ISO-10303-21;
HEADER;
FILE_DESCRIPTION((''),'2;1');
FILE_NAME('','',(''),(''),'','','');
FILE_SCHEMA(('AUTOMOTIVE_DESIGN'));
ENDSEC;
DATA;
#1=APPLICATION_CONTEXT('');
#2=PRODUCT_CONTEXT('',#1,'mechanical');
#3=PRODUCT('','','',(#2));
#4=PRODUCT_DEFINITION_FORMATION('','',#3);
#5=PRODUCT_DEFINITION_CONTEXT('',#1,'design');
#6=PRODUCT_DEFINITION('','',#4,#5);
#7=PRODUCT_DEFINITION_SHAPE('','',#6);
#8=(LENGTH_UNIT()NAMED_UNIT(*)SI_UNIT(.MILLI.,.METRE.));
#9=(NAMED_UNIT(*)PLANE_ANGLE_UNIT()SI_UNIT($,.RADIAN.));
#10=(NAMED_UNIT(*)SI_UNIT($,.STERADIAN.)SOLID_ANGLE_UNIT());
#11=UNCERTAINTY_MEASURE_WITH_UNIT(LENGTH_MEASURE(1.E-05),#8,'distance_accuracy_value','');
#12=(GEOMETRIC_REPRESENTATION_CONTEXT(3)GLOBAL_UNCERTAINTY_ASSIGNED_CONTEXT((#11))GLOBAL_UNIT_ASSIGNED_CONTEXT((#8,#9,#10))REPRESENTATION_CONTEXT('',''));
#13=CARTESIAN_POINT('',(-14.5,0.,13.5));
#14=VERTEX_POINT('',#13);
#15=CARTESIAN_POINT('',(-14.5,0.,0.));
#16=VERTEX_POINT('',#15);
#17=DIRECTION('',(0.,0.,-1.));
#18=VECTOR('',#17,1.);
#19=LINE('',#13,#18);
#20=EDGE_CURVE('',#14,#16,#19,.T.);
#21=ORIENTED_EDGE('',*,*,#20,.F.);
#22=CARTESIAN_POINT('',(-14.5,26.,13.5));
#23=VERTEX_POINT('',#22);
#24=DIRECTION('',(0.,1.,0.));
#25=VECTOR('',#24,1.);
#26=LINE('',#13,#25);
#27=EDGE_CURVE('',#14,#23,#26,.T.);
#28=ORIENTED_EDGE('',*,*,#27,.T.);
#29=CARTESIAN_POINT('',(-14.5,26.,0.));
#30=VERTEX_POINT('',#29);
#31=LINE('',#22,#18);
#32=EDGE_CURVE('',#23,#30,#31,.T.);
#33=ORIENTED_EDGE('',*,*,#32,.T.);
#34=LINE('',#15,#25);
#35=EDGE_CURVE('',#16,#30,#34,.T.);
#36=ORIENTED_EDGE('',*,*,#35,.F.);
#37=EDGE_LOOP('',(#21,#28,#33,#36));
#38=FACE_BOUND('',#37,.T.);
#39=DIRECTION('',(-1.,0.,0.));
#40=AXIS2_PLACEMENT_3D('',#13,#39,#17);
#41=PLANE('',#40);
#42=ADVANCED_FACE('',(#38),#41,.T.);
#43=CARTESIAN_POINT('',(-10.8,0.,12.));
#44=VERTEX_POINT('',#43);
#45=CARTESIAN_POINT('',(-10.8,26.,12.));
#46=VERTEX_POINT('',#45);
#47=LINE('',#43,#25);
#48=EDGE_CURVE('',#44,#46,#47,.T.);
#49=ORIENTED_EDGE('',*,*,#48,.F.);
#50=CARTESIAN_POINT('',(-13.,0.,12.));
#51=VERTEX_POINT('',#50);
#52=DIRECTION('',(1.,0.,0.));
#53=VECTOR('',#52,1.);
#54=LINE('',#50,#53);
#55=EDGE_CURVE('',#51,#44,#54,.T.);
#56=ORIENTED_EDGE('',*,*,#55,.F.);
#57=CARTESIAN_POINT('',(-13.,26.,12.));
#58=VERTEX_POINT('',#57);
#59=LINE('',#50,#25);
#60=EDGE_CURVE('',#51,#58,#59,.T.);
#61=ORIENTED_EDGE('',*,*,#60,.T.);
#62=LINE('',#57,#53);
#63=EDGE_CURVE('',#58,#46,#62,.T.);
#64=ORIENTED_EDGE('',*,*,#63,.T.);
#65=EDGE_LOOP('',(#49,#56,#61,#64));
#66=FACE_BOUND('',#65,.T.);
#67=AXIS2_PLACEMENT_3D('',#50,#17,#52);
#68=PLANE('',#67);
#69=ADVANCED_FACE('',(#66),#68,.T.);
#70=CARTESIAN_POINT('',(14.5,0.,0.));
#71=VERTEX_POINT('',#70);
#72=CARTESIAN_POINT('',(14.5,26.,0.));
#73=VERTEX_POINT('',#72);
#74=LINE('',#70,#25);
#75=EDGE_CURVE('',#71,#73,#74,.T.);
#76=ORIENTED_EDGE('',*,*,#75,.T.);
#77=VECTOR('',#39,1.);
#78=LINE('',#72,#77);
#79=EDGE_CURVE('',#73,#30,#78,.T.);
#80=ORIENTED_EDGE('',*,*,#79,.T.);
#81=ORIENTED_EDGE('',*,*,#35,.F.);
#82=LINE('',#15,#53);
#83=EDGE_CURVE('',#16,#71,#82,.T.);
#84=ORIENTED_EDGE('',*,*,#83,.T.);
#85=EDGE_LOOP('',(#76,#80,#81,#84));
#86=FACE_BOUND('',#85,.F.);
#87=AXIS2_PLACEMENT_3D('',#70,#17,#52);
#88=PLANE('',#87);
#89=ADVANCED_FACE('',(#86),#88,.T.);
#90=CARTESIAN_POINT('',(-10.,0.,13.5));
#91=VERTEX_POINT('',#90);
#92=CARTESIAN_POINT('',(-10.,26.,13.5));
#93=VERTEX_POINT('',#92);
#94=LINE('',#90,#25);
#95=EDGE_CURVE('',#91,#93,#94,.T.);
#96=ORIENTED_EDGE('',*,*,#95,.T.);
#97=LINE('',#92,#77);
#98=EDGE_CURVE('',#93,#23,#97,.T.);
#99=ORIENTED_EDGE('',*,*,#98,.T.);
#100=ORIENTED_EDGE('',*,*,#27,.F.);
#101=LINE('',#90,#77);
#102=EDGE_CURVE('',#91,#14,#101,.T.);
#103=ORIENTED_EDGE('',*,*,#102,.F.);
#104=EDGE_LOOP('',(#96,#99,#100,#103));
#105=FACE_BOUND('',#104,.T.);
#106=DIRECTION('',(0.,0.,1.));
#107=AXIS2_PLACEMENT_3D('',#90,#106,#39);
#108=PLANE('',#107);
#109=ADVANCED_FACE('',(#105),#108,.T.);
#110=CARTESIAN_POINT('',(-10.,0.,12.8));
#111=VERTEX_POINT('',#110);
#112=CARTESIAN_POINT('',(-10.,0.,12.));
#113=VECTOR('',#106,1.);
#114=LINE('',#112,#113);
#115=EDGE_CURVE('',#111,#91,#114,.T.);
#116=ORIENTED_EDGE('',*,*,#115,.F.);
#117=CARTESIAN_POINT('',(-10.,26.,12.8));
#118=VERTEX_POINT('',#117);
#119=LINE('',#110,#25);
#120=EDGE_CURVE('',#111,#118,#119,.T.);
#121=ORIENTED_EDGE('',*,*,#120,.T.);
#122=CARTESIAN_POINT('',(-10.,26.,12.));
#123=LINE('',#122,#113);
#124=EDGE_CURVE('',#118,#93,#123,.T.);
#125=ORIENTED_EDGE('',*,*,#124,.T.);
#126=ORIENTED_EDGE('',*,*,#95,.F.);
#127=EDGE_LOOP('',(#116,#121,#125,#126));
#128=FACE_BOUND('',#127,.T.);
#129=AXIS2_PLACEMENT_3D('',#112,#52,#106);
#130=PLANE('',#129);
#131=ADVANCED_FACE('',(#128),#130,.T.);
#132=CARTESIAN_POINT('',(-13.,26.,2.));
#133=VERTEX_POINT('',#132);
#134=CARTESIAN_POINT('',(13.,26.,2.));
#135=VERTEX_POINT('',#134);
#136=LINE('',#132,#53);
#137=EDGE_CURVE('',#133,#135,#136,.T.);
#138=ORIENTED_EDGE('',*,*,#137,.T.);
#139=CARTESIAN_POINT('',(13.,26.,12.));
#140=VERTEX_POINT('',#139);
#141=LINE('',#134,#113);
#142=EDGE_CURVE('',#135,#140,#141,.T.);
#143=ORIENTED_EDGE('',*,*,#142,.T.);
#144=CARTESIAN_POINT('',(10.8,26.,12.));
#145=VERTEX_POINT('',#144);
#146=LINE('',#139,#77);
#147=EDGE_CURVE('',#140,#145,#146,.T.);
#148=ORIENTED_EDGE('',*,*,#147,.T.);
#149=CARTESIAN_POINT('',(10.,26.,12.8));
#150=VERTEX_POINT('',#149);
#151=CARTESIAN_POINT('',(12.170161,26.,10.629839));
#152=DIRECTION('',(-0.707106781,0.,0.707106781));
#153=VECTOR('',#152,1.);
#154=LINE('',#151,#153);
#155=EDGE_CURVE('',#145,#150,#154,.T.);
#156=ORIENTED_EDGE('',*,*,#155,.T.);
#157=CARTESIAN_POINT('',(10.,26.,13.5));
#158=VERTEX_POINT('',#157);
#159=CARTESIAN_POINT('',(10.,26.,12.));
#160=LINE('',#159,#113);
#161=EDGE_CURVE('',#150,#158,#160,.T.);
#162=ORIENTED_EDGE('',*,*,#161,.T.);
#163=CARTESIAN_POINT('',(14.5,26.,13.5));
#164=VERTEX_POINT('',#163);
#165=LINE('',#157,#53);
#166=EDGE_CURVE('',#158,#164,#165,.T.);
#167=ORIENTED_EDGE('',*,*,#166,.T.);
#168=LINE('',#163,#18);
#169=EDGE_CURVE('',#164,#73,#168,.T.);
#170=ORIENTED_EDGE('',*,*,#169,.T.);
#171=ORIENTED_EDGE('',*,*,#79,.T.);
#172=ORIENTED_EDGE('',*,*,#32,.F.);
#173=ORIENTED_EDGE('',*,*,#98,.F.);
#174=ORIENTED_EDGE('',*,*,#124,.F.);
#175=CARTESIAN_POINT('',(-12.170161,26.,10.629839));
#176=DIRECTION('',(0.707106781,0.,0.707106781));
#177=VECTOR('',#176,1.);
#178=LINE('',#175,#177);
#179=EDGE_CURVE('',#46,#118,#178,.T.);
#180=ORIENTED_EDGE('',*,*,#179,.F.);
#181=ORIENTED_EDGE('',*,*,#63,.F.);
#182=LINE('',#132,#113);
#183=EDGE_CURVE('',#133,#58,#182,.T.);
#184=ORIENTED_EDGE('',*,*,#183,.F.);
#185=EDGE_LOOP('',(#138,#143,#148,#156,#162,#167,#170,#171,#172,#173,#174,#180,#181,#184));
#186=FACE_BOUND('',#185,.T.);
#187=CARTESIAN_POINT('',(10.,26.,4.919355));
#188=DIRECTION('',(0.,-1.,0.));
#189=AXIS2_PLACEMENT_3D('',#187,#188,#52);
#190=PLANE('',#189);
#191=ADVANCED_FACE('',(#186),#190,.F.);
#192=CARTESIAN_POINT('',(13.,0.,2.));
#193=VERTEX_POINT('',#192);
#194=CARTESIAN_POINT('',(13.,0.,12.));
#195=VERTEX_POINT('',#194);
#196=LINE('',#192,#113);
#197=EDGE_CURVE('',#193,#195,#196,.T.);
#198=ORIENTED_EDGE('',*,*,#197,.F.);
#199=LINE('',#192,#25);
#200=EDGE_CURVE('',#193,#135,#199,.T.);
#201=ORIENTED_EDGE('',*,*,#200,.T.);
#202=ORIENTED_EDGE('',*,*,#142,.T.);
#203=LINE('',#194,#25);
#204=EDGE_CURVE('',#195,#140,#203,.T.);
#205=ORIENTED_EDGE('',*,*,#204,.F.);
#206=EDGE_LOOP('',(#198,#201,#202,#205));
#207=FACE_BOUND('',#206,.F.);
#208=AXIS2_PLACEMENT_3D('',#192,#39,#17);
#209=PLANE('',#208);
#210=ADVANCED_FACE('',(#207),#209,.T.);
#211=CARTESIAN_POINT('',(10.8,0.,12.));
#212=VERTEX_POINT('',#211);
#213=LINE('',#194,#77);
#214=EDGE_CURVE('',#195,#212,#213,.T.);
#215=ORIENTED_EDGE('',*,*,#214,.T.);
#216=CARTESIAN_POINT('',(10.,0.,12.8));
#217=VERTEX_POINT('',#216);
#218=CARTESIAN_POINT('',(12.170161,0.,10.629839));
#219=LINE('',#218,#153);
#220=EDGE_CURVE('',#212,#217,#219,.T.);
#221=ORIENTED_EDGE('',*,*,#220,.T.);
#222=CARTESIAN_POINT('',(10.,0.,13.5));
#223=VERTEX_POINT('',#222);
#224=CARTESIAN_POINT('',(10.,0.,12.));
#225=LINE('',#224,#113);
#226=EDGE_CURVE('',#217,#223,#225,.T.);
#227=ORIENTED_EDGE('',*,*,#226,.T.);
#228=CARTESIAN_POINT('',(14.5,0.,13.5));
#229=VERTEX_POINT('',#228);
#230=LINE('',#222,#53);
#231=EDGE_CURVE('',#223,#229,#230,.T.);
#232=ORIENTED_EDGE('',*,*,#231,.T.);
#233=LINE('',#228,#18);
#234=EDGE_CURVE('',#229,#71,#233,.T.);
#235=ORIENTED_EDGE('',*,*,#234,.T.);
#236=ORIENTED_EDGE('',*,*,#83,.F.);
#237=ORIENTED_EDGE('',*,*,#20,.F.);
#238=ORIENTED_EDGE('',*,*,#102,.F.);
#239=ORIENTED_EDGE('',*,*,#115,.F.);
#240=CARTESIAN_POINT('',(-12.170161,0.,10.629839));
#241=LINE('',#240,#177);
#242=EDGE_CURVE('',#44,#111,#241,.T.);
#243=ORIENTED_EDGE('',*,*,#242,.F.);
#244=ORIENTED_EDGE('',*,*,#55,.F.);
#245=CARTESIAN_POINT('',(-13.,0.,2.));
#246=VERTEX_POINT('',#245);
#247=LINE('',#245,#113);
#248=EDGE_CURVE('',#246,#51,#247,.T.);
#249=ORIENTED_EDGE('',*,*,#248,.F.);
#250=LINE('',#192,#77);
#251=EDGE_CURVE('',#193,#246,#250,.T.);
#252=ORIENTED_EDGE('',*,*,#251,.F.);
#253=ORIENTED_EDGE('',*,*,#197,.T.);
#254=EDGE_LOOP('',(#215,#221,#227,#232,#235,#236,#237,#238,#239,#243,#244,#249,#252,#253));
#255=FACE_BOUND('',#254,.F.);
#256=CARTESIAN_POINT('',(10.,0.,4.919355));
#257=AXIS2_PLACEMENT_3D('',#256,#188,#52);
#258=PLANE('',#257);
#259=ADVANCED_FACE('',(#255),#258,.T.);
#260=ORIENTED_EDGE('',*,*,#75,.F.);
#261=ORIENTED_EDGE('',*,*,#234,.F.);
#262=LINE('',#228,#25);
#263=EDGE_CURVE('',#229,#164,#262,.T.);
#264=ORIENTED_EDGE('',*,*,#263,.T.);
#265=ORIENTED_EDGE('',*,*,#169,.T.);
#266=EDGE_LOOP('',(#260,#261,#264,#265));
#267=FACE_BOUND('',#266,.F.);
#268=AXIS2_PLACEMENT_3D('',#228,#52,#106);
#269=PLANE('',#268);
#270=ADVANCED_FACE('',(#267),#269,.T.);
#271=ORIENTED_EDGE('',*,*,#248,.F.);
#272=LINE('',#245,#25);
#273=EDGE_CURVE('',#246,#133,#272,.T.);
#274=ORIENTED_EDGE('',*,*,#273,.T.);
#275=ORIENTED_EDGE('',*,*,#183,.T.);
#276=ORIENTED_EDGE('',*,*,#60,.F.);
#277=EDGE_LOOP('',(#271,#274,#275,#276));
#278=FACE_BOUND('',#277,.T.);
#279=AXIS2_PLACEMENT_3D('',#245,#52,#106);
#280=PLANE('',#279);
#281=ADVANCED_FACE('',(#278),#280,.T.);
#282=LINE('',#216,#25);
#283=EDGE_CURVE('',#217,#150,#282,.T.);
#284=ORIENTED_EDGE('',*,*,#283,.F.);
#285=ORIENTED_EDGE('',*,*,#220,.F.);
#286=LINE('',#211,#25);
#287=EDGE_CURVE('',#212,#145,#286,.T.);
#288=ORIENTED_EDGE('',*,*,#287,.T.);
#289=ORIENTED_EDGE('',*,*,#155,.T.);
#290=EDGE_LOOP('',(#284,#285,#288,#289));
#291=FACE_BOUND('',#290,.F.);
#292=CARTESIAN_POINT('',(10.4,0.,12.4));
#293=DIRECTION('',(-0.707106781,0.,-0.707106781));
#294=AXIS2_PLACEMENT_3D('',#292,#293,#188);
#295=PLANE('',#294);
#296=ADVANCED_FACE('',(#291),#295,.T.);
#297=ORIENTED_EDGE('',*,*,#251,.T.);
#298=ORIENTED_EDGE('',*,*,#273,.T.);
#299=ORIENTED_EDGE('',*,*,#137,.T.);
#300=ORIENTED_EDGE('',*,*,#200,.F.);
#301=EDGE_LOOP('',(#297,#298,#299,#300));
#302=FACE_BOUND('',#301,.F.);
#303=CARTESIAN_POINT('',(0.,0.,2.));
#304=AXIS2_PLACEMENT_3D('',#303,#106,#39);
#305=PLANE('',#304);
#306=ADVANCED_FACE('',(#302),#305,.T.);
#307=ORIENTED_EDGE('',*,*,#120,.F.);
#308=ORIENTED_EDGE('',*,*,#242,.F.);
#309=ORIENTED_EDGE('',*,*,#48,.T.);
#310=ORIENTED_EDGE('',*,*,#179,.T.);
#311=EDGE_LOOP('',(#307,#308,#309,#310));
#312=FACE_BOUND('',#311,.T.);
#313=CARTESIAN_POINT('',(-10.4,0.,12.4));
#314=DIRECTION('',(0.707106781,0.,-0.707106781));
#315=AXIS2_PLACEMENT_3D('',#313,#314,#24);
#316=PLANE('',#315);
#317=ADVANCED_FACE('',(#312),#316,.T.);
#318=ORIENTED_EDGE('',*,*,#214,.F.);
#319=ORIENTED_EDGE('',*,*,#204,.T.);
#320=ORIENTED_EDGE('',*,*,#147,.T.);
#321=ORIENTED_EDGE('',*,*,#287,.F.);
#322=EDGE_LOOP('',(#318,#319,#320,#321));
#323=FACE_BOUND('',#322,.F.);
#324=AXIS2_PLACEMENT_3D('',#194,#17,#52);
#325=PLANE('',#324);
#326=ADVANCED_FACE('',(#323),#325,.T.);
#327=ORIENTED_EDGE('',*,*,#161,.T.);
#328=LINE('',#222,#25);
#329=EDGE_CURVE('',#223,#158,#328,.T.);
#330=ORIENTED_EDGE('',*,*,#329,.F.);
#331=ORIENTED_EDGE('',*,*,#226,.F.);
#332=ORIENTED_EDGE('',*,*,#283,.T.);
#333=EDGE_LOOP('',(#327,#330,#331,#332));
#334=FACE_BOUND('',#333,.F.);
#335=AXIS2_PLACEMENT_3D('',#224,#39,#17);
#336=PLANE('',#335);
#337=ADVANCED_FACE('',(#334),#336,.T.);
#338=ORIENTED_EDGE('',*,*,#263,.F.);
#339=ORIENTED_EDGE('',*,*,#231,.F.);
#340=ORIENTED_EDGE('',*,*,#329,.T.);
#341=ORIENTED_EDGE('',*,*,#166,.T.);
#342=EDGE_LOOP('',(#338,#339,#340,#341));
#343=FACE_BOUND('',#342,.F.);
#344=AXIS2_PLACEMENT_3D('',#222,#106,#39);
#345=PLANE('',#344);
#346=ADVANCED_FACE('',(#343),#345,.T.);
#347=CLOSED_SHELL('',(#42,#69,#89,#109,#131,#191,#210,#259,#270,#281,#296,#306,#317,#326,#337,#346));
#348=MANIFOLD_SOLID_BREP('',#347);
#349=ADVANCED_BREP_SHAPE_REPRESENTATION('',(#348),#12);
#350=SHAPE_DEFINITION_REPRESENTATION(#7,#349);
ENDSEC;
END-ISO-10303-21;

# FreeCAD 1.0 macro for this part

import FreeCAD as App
import Part
import Sketcher


def edges_at(feature, points):
    """Names of the edges that pass closest to the given points."""
    edges = feature.Shape.Edges
    near = lambda p: min(range(len(edges)), key=lambda i: edges[i].distToShape(Part.Vertex(*p))[0])
    return sorted({f"Edge{near(p) + 1}" for p in points})

doc = App.newDocument("Part")
body = doc.addObject("PartDesign::Body", "Body")

# Sketch on XZ plane
sketch1 = body.newObject("Sketcher::SketchObject", "Sketch")
sketch1.AttachmentSupport = (doc.getObject("XZ_Plane"), [""])
sketch1.MapMode = "FlatFace"
sketch1.addGeometry(Part.LineSegment(App.Vector(-14.5, 0, 0), App.Vector(0, 0, 0)), False)
sketch1.addGeometry(Part.LineSegment(App.Vector(0, 0, 0), App.Vector(0, 2, 0)), False)
sketch1.addGeometry(Part.LineSegment(App.Vector(0, 2, 0), App.Vector(-13, 2, 0)), False)
sketch1.addGeometry(Part.LineSegment(App.Vector(-13, 2, 0), App.Vector(-13, 12, 0)), False)
sketch1.addGeometry(Part.LineSegment(App.Vector(-13, 12, 0), App.Vector(-10, 12, 0)), False)
sketch1.addGeometry(Part.LineSegment(App.Vector(-10, 12, 0), App.Vector(-10, 13.5, 0)), False)
sketch1.addGeometry(Part.LineSegment(App.Vector(-10, 13.5, 0), App.Vector(-14.5, 13.5, 0)), False)
sketch1.addGeometry(Part.LineSegment(App.Vector(-14.5, 13.5, 0), App.Vector(-14.5, 0, 0)), False)
sketch1.addConstraint(Sketcher.Constraint("Coincident", 0, 2, 1, 1))
sketch1.addConstraint(Sketcher.Constraint("Coincident", 1, 2, 2, 1))
sketch1.addConstraint(Sketcher.Constraint("Coincident", 2, 2, 3, 1))
sketch1.addConstraint(Sketcher.Constraint("Coincident", 3, 2, 4, 1))
sketch1.addConstraint(Sketcher.Constraint("Coincident", 4, 2, 5, 1))
sketch1.addConstraint(Sketcher.Constraint("Coincident", 5, 2, 6, 1))
sketch1.addConstraint(Sketcher.Constraint("Coincident", 6, 2, 7, 1))
sketch1.addConstraint(Sketcher.Constraint("Coincident", 7, 2, 0, 1))
sketch1.addConstraint(Sketcher.Constraint("Horizontal", 0))
sketch1.addConstraint(Sketcher.Constraint("Vertical", 1))
sketch1.addConstraint(Sketcher.Constraint("Horizontal", 2))
sketch1.addConstraint(Sketcher.Constraint("Vertical", 3))
sketch1.addConstraint(Sketcher.Constraint("Horizontal", 4))
sketch1.addConstraint(Sketcher.Constraint("Vertical", 5))
sketch1.addConstraint(Sketcher.Constraint("Horizontal", 6))
sketch1.addConstraint(Sketcher.Constraint("Vertical", 7))
sketch1.addConstraint(Sketcher.Constraint("Coincident", 0, 2, -1, 1))
sketch1.addConstraint(Sketcher.Constraint("DistanceX", 2, 2, 2, 1, 13.0))
sketch1.addConstraint(Sketcher.Constraint("DistanceX", 4, 1, 4, 2, 3.0))
sketch1.addConstraint(Sketcher.Constraint("DistanceY", 1, 1, 1, 2, 2.0))
sketch1.addConstraint(Sketcher.Constraint("DistanceY", 3, 1, 3, 2, 10.0))
sketch1.addConstraint(Sketcher.Constraint("DistanceX", 0, 1, 0, 2, 14.5))
sketch1.addConstraint(Sketcher.Constraint("DistanceY", 5, 1, 5, 2, 1.5))
pad1 = body.newObject("PartDesign::Pad", "Pad")
pad1.Profile = sketch1
pad1.Length = 26
pad1.Reversed = True
doc.recompute()

chamfer = body.newObject("PartDesign::Chamfer", "Chamfer")
chamfer.Base = (pad1, edges_at(pad1, [(-10, 13, 12)]))
chamfer.Size = 0.8
body2 = doc.addObject("PartDesign::Body", "Body001")
doc.recompute()

body2.BaseFeature = body
doc.recompute()

mirroring = doc.addObject("Part::Mirroring", "Mirroring")
mirroring.Source = body
mirroring.Base = App.Vector(0, 0, 0)
mirroring.Normal = App.Vector(1, 0, 0)
body3 = doc.addObject("PartDesign::Body", "Body002")
body3.BaseFeature = mirroring
boolean = body2.newObject("PartDesign::Boolean", "Boolean")
boolean.Type = "Fuse"
boolean.addObjects([body3])
doc.recompute()
mirroring.Visibility = False

doc.recompute()
